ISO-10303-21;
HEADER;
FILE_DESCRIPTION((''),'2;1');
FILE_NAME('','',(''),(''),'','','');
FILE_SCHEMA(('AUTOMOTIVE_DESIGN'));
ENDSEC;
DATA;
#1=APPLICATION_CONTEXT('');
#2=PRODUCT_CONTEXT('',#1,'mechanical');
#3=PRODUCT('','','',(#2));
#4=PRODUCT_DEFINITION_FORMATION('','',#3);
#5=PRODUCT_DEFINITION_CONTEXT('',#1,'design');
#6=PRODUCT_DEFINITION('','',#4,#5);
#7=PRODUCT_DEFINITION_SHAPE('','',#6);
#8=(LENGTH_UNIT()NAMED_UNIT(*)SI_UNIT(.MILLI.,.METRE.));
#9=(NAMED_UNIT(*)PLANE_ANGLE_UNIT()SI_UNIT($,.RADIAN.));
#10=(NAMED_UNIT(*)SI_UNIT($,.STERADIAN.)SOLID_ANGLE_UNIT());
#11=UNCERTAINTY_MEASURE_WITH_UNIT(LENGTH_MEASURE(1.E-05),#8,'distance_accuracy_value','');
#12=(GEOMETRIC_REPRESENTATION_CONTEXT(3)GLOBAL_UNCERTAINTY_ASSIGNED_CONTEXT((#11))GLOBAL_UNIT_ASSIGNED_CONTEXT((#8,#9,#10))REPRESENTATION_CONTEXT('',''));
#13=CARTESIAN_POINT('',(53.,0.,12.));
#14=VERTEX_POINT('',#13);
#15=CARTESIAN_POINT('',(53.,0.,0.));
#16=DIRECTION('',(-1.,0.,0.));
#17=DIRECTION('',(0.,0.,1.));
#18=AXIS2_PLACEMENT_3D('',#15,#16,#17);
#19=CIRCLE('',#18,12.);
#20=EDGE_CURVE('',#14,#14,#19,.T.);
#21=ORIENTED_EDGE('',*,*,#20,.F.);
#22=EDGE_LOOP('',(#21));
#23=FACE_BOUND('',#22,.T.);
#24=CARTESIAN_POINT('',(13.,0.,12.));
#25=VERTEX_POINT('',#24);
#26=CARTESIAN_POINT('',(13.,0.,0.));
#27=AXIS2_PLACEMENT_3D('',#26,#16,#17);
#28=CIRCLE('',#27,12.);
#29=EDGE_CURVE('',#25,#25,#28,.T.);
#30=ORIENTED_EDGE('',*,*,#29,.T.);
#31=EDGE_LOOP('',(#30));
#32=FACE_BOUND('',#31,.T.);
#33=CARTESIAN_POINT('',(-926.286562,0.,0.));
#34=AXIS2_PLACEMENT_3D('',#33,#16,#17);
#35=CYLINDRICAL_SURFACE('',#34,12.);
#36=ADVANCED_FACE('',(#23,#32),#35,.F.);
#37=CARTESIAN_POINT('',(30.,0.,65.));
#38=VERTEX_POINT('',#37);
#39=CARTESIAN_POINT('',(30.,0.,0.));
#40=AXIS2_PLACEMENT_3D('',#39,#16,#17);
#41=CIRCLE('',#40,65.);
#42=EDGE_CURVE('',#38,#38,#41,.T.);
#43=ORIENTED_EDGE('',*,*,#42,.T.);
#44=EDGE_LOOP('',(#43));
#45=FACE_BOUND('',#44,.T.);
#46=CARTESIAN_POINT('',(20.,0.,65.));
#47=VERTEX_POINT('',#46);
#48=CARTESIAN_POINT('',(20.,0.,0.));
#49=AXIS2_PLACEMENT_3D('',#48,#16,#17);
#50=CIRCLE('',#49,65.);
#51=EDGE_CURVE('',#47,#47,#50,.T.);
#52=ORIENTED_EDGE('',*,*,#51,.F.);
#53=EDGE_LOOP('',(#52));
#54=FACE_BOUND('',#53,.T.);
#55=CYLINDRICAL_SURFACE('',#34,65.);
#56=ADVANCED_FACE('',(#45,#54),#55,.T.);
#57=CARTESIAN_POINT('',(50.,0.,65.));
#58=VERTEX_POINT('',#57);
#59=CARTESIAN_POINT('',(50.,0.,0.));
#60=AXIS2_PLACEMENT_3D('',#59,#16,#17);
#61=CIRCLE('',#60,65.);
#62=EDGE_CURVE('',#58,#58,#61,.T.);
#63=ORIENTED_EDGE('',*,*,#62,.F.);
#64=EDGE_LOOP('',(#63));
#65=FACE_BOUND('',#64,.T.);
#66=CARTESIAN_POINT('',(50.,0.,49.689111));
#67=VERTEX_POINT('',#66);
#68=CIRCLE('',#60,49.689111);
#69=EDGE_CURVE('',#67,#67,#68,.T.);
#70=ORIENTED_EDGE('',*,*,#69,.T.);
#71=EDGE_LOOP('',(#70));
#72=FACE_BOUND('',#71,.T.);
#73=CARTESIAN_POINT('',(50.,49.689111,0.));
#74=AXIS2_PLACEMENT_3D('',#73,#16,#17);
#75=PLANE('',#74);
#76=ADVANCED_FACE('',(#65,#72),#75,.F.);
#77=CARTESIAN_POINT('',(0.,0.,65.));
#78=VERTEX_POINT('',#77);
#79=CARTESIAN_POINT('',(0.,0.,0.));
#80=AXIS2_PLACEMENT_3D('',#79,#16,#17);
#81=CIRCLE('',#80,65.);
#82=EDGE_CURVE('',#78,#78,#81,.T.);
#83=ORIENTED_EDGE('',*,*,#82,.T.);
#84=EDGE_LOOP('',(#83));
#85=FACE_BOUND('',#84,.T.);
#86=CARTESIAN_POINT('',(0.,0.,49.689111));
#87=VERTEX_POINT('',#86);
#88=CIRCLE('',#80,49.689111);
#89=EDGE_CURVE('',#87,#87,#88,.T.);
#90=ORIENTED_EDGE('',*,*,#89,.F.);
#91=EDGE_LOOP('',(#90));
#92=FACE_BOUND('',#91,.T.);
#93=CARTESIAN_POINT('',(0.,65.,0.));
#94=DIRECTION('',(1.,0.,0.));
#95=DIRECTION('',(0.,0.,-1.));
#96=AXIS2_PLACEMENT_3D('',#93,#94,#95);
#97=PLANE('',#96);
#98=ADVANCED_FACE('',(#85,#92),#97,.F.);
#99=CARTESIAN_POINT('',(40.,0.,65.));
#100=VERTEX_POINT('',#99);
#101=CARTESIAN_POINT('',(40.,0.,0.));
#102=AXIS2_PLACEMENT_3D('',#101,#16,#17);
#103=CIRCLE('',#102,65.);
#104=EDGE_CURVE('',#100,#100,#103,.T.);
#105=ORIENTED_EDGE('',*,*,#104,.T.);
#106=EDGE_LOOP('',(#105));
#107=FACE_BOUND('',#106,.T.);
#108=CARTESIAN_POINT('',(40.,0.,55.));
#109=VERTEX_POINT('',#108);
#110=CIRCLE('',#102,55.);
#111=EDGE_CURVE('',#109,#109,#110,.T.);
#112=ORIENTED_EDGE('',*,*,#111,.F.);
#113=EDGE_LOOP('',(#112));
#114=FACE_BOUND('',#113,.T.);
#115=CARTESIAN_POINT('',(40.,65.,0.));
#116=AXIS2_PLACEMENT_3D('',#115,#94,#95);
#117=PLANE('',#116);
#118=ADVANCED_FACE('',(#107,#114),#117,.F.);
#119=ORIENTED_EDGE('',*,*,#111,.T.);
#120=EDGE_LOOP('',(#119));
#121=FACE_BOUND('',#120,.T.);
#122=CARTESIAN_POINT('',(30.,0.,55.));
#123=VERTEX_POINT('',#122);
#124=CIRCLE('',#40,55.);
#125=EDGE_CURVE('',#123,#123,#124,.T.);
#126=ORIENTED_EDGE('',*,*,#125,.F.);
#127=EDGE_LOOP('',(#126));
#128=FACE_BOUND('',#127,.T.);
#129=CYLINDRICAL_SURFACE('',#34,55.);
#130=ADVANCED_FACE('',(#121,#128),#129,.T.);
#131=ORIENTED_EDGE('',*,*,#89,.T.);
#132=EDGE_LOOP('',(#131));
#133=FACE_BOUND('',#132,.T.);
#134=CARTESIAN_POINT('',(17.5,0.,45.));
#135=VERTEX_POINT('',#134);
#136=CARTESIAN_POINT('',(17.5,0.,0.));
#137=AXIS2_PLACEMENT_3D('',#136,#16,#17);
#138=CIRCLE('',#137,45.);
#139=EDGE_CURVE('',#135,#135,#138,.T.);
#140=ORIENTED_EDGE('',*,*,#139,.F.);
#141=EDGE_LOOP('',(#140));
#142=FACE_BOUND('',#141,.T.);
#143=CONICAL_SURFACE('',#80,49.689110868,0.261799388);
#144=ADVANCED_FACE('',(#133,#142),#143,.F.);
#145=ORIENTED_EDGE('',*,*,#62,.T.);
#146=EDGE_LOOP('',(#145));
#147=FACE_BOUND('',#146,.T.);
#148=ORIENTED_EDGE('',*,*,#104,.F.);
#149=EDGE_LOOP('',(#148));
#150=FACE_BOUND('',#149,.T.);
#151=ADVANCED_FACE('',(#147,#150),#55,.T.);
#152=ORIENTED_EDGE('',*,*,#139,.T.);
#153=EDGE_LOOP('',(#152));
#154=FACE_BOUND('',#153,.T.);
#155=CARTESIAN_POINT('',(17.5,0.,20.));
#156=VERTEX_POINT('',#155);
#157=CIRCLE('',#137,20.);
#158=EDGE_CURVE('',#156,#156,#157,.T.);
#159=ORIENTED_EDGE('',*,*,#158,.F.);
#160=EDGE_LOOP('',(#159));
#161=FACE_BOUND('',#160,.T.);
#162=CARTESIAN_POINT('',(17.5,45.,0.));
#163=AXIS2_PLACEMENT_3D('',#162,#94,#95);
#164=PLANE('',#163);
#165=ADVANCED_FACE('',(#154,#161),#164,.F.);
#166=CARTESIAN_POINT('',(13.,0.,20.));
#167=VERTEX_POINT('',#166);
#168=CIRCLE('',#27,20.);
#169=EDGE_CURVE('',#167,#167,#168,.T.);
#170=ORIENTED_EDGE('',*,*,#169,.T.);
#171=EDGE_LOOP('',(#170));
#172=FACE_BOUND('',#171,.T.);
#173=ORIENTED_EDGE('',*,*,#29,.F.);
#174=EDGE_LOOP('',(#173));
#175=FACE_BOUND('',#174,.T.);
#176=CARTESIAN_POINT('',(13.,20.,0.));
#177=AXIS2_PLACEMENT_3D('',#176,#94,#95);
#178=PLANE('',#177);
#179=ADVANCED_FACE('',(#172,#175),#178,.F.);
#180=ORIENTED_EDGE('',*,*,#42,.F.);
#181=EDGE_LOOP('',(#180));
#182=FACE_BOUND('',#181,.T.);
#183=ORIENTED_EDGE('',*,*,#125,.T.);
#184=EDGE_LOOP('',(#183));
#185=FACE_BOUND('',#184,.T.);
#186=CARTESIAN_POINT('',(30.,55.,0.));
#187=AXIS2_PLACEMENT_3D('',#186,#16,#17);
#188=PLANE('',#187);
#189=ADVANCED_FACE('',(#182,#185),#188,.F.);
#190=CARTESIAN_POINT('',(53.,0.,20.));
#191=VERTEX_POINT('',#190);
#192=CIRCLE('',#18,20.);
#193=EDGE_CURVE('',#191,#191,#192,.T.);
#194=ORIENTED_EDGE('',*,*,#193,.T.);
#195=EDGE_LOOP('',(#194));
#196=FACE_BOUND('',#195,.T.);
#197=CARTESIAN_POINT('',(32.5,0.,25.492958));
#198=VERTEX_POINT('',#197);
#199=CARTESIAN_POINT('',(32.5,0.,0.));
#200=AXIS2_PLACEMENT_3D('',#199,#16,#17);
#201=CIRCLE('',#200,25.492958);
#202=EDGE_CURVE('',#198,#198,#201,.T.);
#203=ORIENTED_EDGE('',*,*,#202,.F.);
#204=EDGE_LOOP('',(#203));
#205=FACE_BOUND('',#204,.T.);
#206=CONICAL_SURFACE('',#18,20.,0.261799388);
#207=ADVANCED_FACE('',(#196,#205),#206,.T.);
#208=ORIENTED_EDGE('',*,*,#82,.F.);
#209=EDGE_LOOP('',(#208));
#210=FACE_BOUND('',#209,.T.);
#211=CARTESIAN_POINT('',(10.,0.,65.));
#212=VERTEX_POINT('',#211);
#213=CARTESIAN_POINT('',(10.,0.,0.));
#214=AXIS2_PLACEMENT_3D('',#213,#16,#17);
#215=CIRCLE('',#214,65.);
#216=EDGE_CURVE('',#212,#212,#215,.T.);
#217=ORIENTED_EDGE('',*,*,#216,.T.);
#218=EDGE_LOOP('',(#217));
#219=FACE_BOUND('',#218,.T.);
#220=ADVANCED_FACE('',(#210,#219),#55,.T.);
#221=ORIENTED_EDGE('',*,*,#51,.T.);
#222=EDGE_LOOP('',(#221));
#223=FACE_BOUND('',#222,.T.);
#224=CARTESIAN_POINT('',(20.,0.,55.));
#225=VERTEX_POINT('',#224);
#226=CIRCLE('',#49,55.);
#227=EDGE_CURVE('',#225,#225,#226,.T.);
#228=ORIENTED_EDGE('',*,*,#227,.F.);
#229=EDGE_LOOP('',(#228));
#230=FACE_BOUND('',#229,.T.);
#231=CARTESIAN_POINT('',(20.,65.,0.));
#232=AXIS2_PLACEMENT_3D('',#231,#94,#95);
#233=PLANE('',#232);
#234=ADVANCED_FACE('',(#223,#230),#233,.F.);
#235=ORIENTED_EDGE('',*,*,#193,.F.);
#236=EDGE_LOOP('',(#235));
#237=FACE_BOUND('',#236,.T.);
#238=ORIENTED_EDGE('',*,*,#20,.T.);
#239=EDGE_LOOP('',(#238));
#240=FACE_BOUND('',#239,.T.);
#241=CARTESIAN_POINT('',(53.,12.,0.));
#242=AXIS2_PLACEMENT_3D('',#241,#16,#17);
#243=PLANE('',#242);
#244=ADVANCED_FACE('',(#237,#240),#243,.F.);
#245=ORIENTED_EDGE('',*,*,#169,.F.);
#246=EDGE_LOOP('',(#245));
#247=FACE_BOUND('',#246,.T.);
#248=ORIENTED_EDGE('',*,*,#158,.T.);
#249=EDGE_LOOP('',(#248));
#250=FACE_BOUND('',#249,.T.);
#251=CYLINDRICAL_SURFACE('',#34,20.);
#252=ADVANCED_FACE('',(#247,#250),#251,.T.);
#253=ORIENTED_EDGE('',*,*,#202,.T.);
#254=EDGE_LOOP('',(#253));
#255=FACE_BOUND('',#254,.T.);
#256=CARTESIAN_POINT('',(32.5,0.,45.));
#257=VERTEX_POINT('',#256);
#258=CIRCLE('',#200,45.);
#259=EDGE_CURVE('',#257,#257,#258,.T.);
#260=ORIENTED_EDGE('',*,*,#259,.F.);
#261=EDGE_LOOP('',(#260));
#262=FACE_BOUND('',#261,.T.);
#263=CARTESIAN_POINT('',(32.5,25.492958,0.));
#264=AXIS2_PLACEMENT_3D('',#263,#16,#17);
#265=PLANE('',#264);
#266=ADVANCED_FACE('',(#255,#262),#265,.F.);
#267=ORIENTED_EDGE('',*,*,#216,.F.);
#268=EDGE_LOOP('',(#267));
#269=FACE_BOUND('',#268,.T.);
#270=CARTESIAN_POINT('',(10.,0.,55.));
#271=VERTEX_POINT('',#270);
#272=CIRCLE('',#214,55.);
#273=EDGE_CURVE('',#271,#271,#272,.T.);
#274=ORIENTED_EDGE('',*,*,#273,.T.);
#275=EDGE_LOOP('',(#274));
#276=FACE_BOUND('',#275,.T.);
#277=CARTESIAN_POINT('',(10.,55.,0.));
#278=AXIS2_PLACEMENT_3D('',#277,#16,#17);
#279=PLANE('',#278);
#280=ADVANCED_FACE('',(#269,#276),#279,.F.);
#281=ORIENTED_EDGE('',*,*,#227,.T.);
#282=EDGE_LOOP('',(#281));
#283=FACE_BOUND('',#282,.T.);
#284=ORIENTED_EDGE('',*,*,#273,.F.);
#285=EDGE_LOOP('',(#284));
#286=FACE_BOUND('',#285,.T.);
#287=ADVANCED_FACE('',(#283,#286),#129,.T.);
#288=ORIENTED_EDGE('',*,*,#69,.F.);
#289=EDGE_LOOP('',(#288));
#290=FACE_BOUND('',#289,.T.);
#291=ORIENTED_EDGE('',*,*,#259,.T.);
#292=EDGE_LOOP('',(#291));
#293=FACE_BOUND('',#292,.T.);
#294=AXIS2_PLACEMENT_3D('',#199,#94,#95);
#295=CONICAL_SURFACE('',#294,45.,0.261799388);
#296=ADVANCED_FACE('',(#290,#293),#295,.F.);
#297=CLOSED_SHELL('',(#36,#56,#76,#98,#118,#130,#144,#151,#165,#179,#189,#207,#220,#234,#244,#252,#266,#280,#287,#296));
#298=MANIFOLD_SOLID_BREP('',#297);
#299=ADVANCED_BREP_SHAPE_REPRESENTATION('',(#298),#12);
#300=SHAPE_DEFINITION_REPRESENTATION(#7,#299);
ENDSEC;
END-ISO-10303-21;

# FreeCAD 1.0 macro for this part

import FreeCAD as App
import Part
import Sketcher

V = App.Vector
Q = App.Units.Quantity

doc = App.newDocument("Part")
body = doc.addObject("PartDesign::Body", "Body")

# Sketch on XY plane
sketch1 = doc.addObject("Sketcher::SketchObject", "Sketch")
body.addObject(sketch1)
sketch1.AttachmentSupport = (doc.XY_Plane, [""])
sketch1.MapMode = "FlatFace"
sketch1.addGeometry(Part.LineSegment(V(0, 65, 0), V(0, 49.7, 0)), False)
sketch1.addGeometry(Part.LineSegment(V(0, 49.7, 0), V(17.5, 45, 0)), False)
sketch1.addGeometry(Part.LineSegment(V(17.5, 45, 0), V(17.5, 20, 0)), False)
sketch1.addGeometry(Part.LineSegment(V(17.5, 20, 0), V(13, 20, 0)), False)
sketch1.addGeometry(Part.LineSegment(V(13, 20, 0), V(13, 12, 0)), False)
sketch1.addGeometry(Part.LineSegment(V(13, 12, 0), V(53, 12, 0)), False)
sketch1.addGeometry(Part.LineSegment(V(53, 12, 0), V(53, 20, 0)), False)
sketch1.addGeometry(Part.LineSegment(V(53, 20, 0), V(32.5, 25.5, 0)), False)
sketch1.addGeometry(Part.LineSegment(V(32.5, 25.5, 0), V(32.5, 45, 0)), False)
sketch1.addGeometry(Part.LineSegment(V(32.5, 45, 0), V(50, 49.7, 0)), False)
sketch1.addGeometry(Part.LineSegment(V(50, 49.7, 0), V(50, 65, 0)), False)
sketch1.addGeometry(Part.LineSegment(V(50, 65, 0), V(40, 65, 0)), False)
sketch1.addGeometry(Part.LineSegment(V(40, 65, 0), V(40, 55, 0)), False)
sketch1.addGeometry(Part.LineSegment(V(40, 55, 0), V(30, 55, 0)), False)
sketch1.addGeometry(Part.LineSegment(V(30, 55, 0), V(30, 65, 0)), False)
sketch1.addGeometry(Part.LineSegment(V(30, 65, 0), V(20, 65, 0)), False)
sketch1.addGeometry(Part.LineSegment(V(20, 65, 0), V(20, 55, 0)), False)
sketch1.addGeometry(Part.LineSegment(V(20, 55, 0), V(10, 55, 0)), False)
sketch1.addGeometry(Part.LineSegment(V(10, 55, 0), V(10, 65, 0)), False)
sketch1.addGeometry(Part.LineSegment(V(10, 65, 0), V(0, 65, 0)), False)
sketch1.addConstraint(Sketcher.Constraint("Coincident", 0, 2, 1, 1))
sketch1.addConstraint(Sketcher.Constraint("Coincident", 1, 2, 2, 1))
sketch1.addConstraint(Sketcher.Constraint("Coincident", 2, 2, 3, 1))
sketch1.addConstraint(Sketcher.Constraint("Coincident", 3, 2, 4, 1))
sketch1.addConstraint(Sketcher.Constraint("Coincident", 4, 2, 5, 1))
sketch1.addConstraint(Sketcher.Constraint("Coincident", 5, 2, 6, 1))
sketch1.addConstraint(Sketcher.Constraint("Coincident", 6, 2, 7, 1))
sketch1.addConstraint(Sketcher.Constraint("Coincident", 7, 2, 8, 1))
sketch1.addConstraint(Sketcher.Constraint("Coincident", 8, 2, 9, 1))
sketch1.addConstraint(Sketcher.Constraint("Coincident", 9, 2, 10, 1))
sketch1.addConstraint(Sketcher.Constraint("Coincident", 10, 2, 11, 1))
sketch1.addConstraint(Sketcher.Constraint("Coincident", 11, 2, 12, 1))
sketch1.addConstraint(Sketcher.Constraint("Coincident", 12, 2, 13, 1))
sketch1.addConstraint(Sketcher.Constraint("Coincident", 13, 2, 14, 1))
sketch1.addConstraint(Sketcher.Constraint("Coincident", 14, 2, 15, 1))
sketch1.addConstraint(Sketcher.Constraint("Coincident", 15, 2, 16, 1))
sketch1.addConstraint(Sketcher.Constraint("Coincident", 16, 2, 17, 1))
sketch1.addConstraint(Sketcher.Constraint("Coincident", 17, 2, 18, 1))
sketch1.addConstraint(Sketcher.Constraint("Coincident", 18, 2, 19, 1))
sketch1.addConstraint(Sketcher.Constraint("Coincident", 19, 2, 0, 1))
sketch1.addConstraint(Sketcher.Constraint("Vertical", 0))
sketch1.addConstraint(Sketcher.Constraint("Vertical", 2))
sketch1.addConstraint(Sketcher.Constraint("Horizontal", 3))
sketch1.addConstraint(Sketcher.Constraint("Vertical", 4))
sketch1.addConstraint(Sketcher.Constraint("Horizontal", 5))
sketch1.addConstraint(Sketcher.Constraint("Vertical", 6))
sketch1.addConstraint(Sketcher.Constraint("Vertical", 8))
sketch1.addConstraint(Sketcher.Constraint("Vertical", 10))
sketch1.addConstraint(Sketcher.Constraint("Horizontal", 11))
sketch1.addConstraint(Sketcher.Constraint("Vertical", 12))
sketch1.addConstraint(Sketcher.Constraint("Horizontal", 13))
sketch1.addConstraint(Sketcher.Constraint("Vertical", 14))
sketch1.addConstraint(Sketcher.Constraint("Horizontal", 15))
sketch1.addConstraint(Sketcher.Constraint("Vertical", 16))
sketch1.addConstraint(Sketcher.Constraint("Horizontal", 17))
sketch1.addConstraint(Sketcher.Constraint("Vertical", 18))
sketch1.addConstraint(Sketcher.Constraint("Horizontal", 19))
sketch1.addConstraint(Sketcher.Constraint("PointOnObject", 0, 2, -2))
sketch1.addConstraint(Sketcher.Constraint("Parallel", 1, 7))
sketch1.addConstraint(Sketcher.Constraint("Horizontal", 3, 2, 6, 2))
sketch1.addConstraint(Sketcher.Constraint("Horizontal", 1, 2, 8, 2))
sketch1.addConstraint(Sketcher.Constraint("Horizontal", 0, 2, 9, 2))
sketch1.addConstraint(Sketcher.Constraint("Horizontal", 11, 2, 14, 2))
sketch1.addConstraint(Sketcher.Constraint("Horizontal", 13, 2, 16, 2))
sketch1.addConstraint(Sketcher.Constraint("Horizontal", 15, 2, 18, 2))
sketch1.addConstraint(Sketcher.Constraint("Equal", 11, 13))
sketch1.addConstraint(Sketcher.Constraint("Equal", 13, 15))
sketch1.addConstraint(Sketcher.Constraint("Equal", 15, 17))
sketch1.addConstraint(Sketcher.Constraint("Equal", 17, 19))
sketch1.addConstraint(Sketcher.Constraint("Equal", 19, 12))
sketch1.addConstraint(Sketcher.Constraint("Equal", 1, 9))
sketch1.addConstraint(Sketcher.Constraint("DistanceX", 5, 1, 5, 2, 40.0))
sketch1.addConstraint(Sketcher.Constraint("DistanceX", 11, 2, 11, 1, 10.0))
sketch1.addConstraint(Sketcher.Constraint("DistanceY", 2, 2, 2, 1, 25.0))
sketch1.addConstraint(Sketcher.Constraint("DistanceY", 4, 2, 4, 1, 8.0))
sketch1.addConstraint(Sketcher.Constraint("Angle", 1, Q("-15 deg")))
sketch1.addConstraint(Sketcher.Constraint("DistanceX", 3, 2, 3, 1, 4.5))
sketch1.addConstraint(Sketcher.Constraint("DistanceY", -1, 1, 1, 2, 45.0))
sketch1.addConstraint(Sketcher.Constraint("DistanceX", -1, 1, 3, 2, 13.0))
sketch1.addConstraint(Sketcher.Constraint("DistanceY", -1, 1, 10, 2, 65.0))
revolution = doc.addObject("PartDesign::Revolution", "Revolution")
body.addObject(revolution)
revolution.Profile = sketch1
revolution.ReferenceAxis = (sketch1, ["H_Axis"])
revolution.Angle = 360

doc.recompute()
